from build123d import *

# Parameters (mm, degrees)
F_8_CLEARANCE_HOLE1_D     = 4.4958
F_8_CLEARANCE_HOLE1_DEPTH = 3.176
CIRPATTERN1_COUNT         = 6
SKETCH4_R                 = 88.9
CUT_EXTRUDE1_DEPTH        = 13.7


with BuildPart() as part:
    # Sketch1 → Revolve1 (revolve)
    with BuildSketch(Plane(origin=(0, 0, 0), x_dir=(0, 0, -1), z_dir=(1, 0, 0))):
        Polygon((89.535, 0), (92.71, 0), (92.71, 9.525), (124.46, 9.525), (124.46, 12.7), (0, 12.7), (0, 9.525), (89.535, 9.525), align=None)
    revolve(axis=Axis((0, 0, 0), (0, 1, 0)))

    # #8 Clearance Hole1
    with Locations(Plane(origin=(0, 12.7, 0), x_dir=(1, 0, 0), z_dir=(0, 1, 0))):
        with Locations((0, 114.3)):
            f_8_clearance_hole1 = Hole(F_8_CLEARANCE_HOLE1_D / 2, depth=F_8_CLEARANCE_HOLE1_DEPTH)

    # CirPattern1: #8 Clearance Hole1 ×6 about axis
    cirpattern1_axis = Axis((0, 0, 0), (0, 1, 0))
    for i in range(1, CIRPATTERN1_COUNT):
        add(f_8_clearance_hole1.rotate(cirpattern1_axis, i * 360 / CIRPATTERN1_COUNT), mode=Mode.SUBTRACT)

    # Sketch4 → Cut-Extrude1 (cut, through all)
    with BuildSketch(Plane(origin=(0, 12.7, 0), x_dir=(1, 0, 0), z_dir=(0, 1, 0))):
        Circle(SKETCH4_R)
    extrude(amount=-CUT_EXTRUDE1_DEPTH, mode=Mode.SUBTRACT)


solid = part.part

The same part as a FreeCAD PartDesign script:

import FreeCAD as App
import Part
import Sketcher

V = App.Vector
Q = App.Units.Quantity

doc = App.newDocument("Part")
body = doc.addObject("PartDesign::Body", "Body")

# Sketch on YZ plane
sketch1 = doc.addObject("Sketcher::SketchObject", "Sketch")
body.addObject(sketch1)
sketch1.AttachmentSupport = (doc.YZ_Plane, [""])
sketch1.MapMode = "FlatFace"
sketch1.addGeometry([
    Part.LineSegment(V(0, -89.5, 0), V(0, -92.7, 0)),  # 0
    Part.LineSegment(V(0, -92.7, 0), V(9.5, -92.7, 0)),  # 1
    Part.LineSegment(V(9.5, -92.7, 0), V(9.5, -124.5, 0)),  # 2
    Part.LineSegment(V(9.5, -124.5, 0), V(12.7, -124.5, 0)),  # 3
    Part.LineSegment(V(12.7, -124.5, 0), V(12.7, 0, 0)),  # 4
    Part.LineSegment(V(12.7, 0, 0), V(9.5, 0, 0)),  # 5
    Part.LineSegment(V(9.5, 0, 0), V(9.5, -89.5, 0)),  # 6
    Part.LineSegment(V(9.5, -89.5, 0), V(0, -89.5, 0)),  # 7
], False)
sketch1.addConstraint([
    Sketcher.Constraint("Coincident", 0, 2, 1, 1),
    Sketcher.Constraint("Coincident", 1, 2, 2, 1),
    Sketcher.Constraint("Coincident", 2, 2, 3, 1),
    Sketcher.Constraint("Coincident", 3, 2, 4, 1),
    Sketcher.Constraint("Coincident", 4, 2, 5, 1),
    Sketcher.Constraint("Coincident", 5, 2, 6, 1),
    Sketcher.Constraint("Coincident", 6, 2, 7, 1),
    Sketcher.Constraint("Coincident", 7, 2, 0, 1),
    Sketcher.Constraint("Vertical", 0),
    Sketcher.Constraint("Horizontal", 1),
    Sketcher.Constraint("Vertical", 2),
    Sketcher.Constraint("Horizontal", 3),
    Sketcher.Constraint("Vertical", 4),
    Sketcher.Constraint("Horizontal", 5),
    Sketcher.Constraint("Vertical", 6),
    Sketcher.Constraint("Horizontal", 7),
    Sketcher.Constraint("PointOnObject", 0, 2, -2),
    Sketcher.Constraint("PointOnObject", 4, 2, -1),
    Sketcher.Constraint("Vertical", 2, 2, 5, 2),
    Sketcher.Constraint("Equal", 5, 0),
    Sketcher.Constraint("DistanceY", 4, 1, 4, 2, Q("4.9 in")),
    Sketcher.Constraint("DistanceY", 2, 2, 2, 1, Q("1.25 in")),
    Sketcher.Constraint("DistanceX", -1, 1, 3, 2, Q("0.5 in")),
    Sketcher.Constraint("DistanceX", 1, 1, 1, 2, Q("0.375 in")),
])
revolution = doc.addObject("PartDesign::Revolution", "Revolution")
body.addObject(revolution)
revolution.Profile = sketch1
revolution.ReferenceAxis = (sketch1, ["H_Axis"])
revolution.Angle = 360

# Sketch on XZ plane
sketch2 = doc.addObject("Sketcher::SketchObject", "Sketch001")
body.addObject(sketch2)
sketch2.AttachmentSupport = (doc.XZ_Plane, [""])
sketch2.MapMode = "FlatFace"
sketch2.AttachmentOffset = App.Placement(V(0, 0, -0.5 * 25.4), App.Rotation())
sketch2.addGeometry(Part.Circle(V(0, -114.3, 0), V(0, 0, 1), 2.2), False)
sketch2.addConstraint([
    Sketcher.Constraint("PointOnObject", 0, 3, -2),
    Sketcher.Constraint("Diameter", 0, Q("0.177 in")),
    Sketcher.Constraint("DistanceY", 0, 3, -1, 1, Q("4.5 in")),
])
doc.recompute()
hole = doc.addObject("PartDesign::Hole", "Hole")
body.addObject(hole)
hole.Profile = sketch2
hole.ThreadType = "None"
hole.Diameter = Q("0.177 in")
hole.DepthType = "Dimension"
hole.Depth = 3.176
hole.DrillPoint = "Flat"
hole.Reversed = True
doc.recompute()

polarpattern = doc.addObject("PartDesign::PolarPattern", "PolarPattern")
body.addObject(polarpattern)
polarpattern.Originals = [hole]
polarpattern.Axis = (doc.Y_Axis, [""])
polarpattern.Angle = 360
polarpattern.Occurrences = 6
body.Tip = polarpattern

# Sketch on XZ plane
sketch3 = doc.addObject("Sketcher::SketchObject", "Sketch002")
body.addObject(sketch3)
sketch3.AttachmentSupport = (doc.XZ_Plane, [""])
sketch3.MapMode = "FlatFace"
sketch3.AttachmentOffset = App.Placement(V(0, 0, -0.5 * 25.4), App.Rotation())
sketch3.addGeometry(Part.Circle(V(0, 0, 0), V(0, 0, 1), 89), False)
sketch3.addConstraint([
    Sketcher.Constraint("Coincident", 0, 3, -1, 1),
    Sketcher.Constraint("Diameter", 0, Q("7 in")),
])
pocket1 = doc.addObject("PartDesign::Pocket", "Pocket")
body.addObject(pocket1)
pocket1.Profile = sketch3
pocket1.Type = "ThroughAll"
pocket1.Reversed = True

doc.recompute()
